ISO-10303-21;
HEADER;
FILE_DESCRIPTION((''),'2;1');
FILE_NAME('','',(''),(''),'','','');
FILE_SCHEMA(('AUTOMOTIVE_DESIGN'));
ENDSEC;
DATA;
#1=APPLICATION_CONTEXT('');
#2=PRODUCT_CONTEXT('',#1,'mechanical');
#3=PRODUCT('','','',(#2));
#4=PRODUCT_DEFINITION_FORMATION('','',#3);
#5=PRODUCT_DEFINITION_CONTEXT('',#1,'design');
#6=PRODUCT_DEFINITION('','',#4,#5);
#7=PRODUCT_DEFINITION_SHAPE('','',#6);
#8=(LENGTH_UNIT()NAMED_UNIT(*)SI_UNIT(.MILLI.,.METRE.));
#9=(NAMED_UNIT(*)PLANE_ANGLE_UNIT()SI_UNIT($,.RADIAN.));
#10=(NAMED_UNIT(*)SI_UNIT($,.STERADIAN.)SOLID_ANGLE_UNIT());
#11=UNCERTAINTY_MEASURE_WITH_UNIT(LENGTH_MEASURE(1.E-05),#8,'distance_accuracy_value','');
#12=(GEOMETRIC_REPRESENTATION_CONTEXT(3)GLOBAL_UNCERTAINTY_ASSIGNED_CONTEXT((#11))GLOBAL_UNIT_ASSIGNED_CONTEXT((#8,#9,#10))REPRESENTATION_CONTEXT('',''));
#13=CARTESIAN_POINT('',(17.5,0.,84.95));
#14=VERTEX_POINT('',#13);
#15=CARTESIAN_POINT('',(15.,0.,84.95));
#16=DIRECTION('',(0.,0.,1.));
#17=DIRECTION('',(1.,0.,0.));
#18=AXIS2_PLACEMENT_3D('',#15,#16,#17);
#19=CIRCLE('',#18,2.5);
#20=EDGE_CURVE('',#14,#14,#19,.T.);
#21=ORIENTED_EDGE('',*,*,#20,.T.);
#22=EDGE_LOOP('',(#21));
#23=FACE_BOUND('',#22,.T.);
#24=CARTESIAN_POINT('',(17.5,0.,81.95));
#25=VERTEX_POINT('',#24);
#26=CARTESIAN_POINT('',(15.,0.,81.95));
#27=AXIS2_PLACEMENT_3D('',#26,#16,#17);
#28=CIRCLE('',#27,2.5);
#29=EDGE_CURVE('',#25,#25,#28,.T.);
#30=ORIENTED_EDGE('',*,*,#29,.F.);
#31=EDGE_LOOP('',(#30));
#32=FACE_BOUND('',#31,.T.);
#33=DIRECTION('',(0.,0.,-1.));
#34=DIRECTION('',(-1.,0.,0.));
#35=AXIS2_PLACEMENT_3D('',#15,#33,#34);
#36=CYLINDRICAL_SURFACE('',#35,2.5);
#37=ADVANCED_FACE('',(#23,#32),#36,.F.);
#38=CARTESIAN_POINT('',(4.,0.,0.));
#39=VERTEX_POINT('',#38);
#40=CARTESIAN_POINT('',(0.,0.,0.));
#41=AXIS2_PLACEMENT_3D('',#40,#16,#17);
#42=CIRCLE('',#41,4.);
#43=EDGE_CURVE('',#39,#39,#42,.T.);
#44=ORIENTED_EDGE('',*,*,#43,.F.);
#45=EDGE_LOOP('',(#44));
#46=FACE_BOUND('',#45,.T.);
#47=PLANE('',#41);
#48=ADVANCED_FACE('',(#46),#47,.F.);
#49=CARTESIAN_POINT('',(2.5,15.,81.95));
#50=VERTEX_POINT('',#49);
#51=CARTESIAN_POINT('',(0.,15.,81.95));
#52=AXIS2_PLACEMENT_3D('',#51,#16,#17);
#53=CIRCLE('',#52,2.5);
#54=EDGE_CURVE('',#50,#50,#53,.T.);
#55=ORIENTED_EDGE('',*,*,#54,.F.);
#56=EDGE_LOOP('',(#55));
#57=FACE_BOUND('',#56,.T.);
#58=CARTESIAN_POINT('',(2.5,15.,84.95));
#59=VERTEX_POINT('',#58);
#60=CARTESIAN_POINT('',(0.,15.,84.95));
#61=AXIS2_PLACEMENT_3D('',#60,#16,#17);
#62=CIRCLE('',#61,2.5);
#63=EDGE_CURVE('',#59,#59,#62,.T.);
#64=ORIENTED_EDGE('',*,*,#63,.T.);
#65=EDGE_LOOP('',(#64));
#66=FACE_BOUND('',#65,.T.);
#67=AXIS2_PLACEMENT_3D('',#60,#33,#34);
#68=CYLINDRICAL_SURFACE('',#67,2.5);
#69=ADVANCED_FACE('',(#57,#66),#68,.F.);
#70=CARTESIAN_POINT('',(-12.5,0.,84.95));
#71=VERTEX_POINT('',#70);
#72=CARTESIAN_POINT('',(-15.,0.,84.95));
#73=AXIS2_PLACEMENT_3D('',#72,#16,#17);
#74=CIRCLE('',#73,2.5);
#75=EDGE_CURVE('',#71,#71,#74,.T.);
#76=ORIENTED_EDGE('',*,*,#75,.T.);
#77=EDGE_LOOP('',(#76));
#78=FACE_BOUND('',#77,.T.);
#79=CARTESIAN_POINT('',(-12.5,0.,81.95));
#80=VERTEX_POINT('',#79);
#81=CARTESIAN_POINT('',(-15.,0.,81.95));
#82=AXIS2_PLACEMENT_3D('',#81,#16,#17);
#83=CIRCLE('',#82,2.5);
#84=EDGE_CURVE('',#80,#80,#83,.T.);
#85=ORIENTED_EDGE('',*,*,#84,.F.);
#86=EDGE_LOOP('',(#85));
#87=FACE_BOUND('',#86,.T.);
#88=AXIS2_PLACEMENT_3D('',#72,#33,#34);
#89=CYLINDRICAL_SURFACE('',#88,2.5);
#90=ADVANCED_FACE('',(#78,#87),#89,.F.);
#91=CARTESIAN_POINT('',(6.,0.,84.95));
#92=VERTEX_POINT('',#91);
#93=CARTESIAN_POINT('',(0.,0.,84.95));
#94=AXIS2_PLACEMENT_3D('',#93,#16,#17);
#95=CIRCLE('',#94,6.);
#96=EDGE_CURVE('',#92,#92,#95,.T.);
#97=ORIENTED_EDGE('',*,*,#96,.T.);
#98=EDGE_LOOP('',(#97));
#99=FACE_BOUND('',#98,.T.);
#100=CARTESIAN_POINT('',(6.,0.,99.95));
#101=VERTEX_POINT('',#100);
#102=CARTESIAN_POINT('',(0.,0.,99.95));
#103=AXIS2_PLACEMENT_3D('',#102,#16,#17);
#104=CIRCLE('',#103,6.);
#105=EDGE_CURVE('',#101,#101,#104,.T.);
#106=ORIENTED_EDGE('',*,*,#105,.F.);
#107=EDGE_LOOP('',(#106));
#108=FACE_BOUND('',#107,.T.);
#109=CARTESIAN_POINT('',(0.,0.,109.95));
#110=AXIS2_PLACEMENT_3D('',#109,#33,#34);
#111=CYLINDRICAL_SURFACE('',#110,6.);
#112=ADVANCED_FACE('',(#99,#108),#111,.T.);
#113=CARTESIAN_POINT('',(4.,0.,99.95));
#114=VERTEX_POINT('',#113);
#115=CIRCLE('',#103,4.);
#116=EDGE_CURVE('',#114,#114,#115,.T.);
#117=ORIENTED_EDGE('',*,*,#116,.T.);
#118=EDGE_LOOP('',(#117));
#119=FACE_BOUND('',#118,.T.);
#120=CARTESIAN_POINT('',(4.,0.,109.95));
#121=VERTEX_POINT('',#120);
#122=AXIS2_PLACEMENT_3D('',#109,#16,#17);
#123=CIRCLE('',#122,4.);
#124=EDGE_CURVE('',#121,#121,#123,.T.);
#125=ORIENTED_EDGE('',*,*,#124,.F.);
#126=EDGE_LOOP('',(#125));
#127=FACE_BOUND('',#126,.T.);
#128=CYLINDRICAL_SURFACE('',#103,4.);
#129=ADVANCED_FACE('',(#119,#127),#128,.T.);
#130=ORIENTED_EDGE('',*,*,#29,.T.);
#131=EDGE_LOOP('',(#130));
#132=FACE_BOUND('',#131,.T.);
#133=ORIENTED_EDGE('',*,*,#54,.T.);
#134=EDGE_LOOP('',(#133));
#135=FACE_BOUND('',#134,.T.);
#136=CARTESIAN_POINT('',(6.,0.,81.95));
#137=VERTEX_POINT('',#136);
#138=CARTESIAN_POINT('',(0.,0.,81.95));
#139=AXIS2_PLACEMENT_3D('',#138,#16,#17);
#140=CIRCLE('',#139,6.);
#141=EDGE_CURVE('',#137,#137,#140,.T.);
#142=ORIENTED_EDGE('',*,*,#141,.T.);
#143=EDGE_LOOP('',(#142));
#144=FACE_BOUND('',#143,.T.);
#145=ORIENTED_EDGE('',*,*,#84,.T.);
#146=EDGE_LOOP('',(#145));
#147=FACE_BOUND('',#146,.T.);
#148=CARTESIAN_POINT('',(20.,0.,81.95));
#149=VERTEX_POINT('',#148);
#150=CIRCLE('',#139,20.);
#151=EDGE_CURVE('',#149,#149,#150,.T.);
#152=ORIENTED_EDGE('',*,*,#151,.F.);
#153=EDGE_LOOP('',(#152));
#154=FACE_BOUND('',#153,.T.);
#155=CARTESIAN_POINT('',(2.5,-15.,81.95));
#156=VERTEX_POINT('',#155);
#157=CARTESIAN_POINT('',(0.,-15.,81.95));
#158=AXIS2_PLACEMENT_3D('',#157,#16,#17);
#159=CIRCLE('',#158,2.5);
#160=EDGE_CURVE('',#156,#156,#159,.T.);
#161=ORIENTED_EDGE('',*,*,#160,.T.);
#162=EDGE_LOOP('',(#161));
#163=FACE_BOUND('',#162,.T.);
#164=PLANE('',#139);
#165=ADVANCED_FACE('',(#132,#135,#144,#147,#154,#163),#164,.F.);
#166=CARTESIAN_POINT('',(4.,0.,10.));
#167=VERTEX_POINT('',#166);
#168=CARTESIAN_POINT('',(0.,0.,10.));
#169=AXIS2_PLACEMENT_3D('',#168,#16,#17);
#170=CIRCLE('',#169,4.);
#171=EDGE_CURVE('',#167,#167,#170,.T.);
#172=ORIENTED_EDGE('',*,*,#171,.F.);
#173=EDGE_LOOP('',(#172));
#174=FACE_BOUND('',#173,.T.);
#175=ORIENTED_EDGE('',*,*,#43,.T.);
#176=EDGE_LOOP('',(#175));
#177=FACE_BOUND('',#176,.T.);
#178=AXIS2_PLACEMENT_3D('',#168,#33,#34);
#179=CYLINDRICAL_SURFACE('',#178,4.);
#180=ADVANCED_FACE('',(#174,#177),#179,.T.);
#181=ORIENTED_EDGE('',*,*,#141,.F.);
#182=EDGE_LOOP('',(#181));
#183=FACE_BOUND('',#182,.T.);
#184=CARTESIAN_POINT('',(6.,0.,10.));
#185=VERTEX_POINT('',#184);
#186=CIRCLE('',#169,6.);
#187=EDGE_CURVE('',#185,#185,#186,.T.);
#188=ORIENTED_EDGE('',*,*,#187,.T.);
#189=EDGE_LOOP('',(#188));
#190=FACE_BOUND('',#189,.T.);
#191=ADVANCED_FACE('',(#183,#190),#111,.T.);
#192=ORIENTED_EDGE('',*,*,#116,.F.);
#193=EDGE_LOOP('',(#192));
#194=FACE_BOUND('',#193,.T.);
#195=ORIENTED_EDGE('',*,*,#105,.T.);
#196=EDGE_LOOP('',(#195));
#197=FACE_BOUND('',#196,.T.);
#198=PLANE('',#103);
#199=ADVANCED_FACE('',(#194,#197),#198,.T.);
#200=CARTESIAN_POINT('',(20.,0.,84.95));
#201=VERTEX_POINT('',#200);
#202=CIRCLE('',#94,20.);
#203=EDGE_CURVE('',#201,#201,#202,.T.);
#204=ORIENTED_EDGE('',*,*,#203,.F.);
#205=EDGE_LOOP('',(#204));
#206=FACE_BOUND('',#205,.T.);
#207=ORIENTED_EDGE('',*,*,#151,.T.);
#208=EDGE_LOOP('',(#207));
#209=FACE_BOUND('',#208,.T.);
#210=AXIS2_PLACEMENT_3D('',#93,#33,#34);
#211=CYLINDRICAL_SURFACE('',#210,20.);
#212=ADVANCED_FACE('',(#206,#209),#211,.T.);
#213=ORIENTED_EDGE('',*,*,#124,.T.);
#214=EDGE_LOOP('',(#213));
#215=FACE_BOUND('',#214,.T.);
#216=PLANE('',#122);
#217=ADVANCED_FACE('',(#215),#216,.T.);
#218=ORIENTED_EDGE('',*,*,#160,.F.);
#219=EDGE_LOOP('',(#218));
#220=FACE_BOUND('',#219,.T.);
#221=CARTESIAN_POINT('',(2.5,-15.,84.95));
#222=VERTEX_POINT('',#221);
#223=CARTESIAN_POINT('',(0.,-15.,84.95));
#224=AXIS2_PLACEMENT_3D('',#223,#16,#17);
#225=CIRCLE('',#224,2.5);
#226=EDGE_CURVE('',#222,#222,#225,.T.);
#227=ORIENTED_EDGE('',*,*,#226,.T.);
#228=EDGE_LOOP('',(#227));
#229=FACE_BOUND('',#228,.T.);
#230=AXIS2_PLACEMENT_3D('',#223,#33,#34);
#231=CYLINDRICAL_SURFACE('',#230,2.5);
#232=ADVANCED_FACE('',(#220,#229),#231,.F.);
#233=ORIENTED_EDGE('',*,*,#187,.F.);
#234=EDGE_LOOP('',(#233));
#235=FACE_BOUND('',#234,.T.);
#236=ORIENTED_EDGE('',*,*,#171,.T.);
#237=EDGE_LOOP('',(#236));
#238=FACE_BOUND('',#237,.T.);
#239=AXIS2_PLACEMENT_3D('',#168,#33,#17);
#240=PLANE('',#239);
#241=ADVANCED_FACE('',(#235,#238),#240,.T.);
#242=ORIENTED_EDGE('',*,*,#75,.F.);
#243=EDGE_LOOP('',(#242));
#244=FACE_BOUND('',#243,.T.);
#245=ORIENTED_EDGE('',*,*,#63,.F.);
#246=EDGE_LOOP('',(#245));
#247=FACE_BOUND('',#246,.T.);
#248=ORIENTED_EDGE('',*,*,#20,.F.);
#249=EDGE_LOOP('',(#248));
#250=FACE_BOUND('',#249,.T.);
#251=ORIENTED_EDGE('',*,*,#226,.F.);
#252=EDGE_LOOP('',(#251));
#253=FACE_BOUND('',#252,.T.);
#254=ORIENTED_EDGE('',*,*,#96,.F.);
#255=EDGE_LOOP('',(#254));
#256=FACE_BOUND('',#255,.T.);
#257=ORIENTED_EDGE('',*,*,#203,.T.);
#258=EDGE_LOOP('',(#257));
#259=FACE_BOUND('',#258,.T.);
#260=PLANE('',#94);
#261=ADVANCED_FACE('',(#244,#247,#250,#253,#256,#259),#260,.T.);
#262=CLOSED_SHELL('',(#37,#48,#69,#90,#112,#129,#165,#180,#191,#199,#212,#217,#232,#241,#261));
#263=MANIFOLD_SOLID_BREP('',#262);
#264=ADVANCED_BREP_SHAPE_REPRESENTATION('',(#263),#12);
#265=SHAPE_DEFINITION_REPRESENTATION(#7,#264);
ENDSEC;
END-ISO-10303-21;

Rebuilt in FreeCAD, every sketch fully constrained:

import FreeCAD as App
import Part
import Sketcher

doc = App.newDocument("Part")
body = doc.addObject("PartDesign::Body", "Body")

# Sketch on XY plane
sketch1 = body.newObject("Sketcher::SketchObject", "Sketch")
sketch1.AttachmentSupport = (doc.getObject("XY_Plane"), [""])
sketch1.MapMode = "FlatFace"
sketch1.addGeometry(Part.Circle(App.Vector(0, 0, 0), App.Vector(0, 0, 1), 6), False)
sketch1.addConstraint([
    Sketcher.Constraint("Coincident", 0, 3, -1, 1),
    Sketcher.Constraint("Diameter", 0, 12.0),
])
pad1 = body.newObject("PartDesign::Pad", "Pad")
pad1.Profile = sketch1
pad1.Length = 109.95

# Sketch on XY plane
sketch2 = body.newObject("Sketcher::SketchObject", "Sketch001")
sketch2.AttachmentSupport = (doc.getObject("XY_Plane"), [""])
sketch2.MapMode = "FlatFace"
sketch2.AttachmentOffset = App.Placement(App.Vector(0, 0, 81.95), App.Rotation())
sketch2.addGeometry([
    Part.Circle(App.Vector(0, 0, 0), App.Vector(0, 0, 1), 20),  # 0
    Part.Circle(App.Vector(0, -15, 0), App.Vector(0, 0, 1), 2.5),  # 1
    Part.Circle(App.Vector(-15, 0, 0), App.Vector(0, 0, 1), 2.5),  # 2
    Part.Circle(App.Vector(15, 0, 0), App.Vector(0, 0, 1), 2.5),  # 3
    Part.Circle(App.Vector(0, 15, 0), App.Vector(0, 0, 1), 2.5),  # 4
], False)
sketch2.addConstraint([
    Sketcher.Constraint("Coincident", 0, 3, -1, 1),
    Sketcher.Constraint("Equal", 1, 2),
    Sketcher.Constraint("Equal", 2, 3),
    Sketcher.Constraint("Equal", 3, 4),
    Sketcher.Constraint("Symmetric", 2, 3, 3, 3, -1, 1),
    Sketcher.Constraint("Symmetric", 1, 3, 4, 3, -1, 1),
    Sketcher.Constraint("PointOnObject", 1, 3, -2),
    Sketcher.Constraint("PointOnObject", 2, 3, -1),
    Sketcher.Constraint("Diameter", 0, 40.0),
    Sketcher.Constraint("Diameter", 1, 5.0),
    Sketcher.Constraint("DistanceY", 1, 3, -1, 1, 15.0),
    Sketcher.Constraint("DistanceX", 2, 3, -1, 1, 15.0),
])
pad2 = body.newObject("PartDesign::Pad", "Pad001")
pad2.Profile = sketch2
pad2.Length = 3

# Sketch on XY plane
sketch3 = body.newObject("Sketcher::SketchObject", "Sketch002")
sketch3.AttachmentSupport = (doc.getObject("XY_Plane"), [""])
sketch3.MapMode = "FlatFace"
sketch3.AttachmentOffset = App.Placement(App.Vector(0, 0, 109.95), App.Rotation())
sketch3.addGeometry([
    Part.Circle(App.Vector(0, 0, 0), App.Vector(0, 0, 1), 6),
    Part.Circle(App.Vector(0, 0, 0), App.Vector(0, 0, 1), 4),
], False)
sketch3.addConstraint([
    Sketcher.Constraint("Coincident", 0, 3, -1, 1),
    Sketcher.Constraint("Coincident", 1, 3, -1, 1),
    Sketcher.Constraint("Diameter", 0, 12.0),
    Sketcher.Constraint("Diameter", 1, 8.0),
])
pocket1 = body.newObject("PartDesign::Pocket", "Pocket")
pocket1.Profile = sketch3
pocket1.Length = 10
doc.recompute()

datumplane = body.newObject("PartDesign::Plane", "DatumPlane")
datumplane.AttachmentSupport = (doc.getObject("XY_Plane"), [""])
datumplane.MapMode = "FlatFace"
datumplane.AttachmentOffset = App.Placement(App.Vector(0, 0, 54.975), App.Rotation())
mirrored = body.newObject("PartDesign::Mirrored", "Mirrored")
mirrored.Originals = [pocket1]
mirrored.MirrorPlane = (datumplane, [""])
body.Tip = mirrored

doc.recompute()
